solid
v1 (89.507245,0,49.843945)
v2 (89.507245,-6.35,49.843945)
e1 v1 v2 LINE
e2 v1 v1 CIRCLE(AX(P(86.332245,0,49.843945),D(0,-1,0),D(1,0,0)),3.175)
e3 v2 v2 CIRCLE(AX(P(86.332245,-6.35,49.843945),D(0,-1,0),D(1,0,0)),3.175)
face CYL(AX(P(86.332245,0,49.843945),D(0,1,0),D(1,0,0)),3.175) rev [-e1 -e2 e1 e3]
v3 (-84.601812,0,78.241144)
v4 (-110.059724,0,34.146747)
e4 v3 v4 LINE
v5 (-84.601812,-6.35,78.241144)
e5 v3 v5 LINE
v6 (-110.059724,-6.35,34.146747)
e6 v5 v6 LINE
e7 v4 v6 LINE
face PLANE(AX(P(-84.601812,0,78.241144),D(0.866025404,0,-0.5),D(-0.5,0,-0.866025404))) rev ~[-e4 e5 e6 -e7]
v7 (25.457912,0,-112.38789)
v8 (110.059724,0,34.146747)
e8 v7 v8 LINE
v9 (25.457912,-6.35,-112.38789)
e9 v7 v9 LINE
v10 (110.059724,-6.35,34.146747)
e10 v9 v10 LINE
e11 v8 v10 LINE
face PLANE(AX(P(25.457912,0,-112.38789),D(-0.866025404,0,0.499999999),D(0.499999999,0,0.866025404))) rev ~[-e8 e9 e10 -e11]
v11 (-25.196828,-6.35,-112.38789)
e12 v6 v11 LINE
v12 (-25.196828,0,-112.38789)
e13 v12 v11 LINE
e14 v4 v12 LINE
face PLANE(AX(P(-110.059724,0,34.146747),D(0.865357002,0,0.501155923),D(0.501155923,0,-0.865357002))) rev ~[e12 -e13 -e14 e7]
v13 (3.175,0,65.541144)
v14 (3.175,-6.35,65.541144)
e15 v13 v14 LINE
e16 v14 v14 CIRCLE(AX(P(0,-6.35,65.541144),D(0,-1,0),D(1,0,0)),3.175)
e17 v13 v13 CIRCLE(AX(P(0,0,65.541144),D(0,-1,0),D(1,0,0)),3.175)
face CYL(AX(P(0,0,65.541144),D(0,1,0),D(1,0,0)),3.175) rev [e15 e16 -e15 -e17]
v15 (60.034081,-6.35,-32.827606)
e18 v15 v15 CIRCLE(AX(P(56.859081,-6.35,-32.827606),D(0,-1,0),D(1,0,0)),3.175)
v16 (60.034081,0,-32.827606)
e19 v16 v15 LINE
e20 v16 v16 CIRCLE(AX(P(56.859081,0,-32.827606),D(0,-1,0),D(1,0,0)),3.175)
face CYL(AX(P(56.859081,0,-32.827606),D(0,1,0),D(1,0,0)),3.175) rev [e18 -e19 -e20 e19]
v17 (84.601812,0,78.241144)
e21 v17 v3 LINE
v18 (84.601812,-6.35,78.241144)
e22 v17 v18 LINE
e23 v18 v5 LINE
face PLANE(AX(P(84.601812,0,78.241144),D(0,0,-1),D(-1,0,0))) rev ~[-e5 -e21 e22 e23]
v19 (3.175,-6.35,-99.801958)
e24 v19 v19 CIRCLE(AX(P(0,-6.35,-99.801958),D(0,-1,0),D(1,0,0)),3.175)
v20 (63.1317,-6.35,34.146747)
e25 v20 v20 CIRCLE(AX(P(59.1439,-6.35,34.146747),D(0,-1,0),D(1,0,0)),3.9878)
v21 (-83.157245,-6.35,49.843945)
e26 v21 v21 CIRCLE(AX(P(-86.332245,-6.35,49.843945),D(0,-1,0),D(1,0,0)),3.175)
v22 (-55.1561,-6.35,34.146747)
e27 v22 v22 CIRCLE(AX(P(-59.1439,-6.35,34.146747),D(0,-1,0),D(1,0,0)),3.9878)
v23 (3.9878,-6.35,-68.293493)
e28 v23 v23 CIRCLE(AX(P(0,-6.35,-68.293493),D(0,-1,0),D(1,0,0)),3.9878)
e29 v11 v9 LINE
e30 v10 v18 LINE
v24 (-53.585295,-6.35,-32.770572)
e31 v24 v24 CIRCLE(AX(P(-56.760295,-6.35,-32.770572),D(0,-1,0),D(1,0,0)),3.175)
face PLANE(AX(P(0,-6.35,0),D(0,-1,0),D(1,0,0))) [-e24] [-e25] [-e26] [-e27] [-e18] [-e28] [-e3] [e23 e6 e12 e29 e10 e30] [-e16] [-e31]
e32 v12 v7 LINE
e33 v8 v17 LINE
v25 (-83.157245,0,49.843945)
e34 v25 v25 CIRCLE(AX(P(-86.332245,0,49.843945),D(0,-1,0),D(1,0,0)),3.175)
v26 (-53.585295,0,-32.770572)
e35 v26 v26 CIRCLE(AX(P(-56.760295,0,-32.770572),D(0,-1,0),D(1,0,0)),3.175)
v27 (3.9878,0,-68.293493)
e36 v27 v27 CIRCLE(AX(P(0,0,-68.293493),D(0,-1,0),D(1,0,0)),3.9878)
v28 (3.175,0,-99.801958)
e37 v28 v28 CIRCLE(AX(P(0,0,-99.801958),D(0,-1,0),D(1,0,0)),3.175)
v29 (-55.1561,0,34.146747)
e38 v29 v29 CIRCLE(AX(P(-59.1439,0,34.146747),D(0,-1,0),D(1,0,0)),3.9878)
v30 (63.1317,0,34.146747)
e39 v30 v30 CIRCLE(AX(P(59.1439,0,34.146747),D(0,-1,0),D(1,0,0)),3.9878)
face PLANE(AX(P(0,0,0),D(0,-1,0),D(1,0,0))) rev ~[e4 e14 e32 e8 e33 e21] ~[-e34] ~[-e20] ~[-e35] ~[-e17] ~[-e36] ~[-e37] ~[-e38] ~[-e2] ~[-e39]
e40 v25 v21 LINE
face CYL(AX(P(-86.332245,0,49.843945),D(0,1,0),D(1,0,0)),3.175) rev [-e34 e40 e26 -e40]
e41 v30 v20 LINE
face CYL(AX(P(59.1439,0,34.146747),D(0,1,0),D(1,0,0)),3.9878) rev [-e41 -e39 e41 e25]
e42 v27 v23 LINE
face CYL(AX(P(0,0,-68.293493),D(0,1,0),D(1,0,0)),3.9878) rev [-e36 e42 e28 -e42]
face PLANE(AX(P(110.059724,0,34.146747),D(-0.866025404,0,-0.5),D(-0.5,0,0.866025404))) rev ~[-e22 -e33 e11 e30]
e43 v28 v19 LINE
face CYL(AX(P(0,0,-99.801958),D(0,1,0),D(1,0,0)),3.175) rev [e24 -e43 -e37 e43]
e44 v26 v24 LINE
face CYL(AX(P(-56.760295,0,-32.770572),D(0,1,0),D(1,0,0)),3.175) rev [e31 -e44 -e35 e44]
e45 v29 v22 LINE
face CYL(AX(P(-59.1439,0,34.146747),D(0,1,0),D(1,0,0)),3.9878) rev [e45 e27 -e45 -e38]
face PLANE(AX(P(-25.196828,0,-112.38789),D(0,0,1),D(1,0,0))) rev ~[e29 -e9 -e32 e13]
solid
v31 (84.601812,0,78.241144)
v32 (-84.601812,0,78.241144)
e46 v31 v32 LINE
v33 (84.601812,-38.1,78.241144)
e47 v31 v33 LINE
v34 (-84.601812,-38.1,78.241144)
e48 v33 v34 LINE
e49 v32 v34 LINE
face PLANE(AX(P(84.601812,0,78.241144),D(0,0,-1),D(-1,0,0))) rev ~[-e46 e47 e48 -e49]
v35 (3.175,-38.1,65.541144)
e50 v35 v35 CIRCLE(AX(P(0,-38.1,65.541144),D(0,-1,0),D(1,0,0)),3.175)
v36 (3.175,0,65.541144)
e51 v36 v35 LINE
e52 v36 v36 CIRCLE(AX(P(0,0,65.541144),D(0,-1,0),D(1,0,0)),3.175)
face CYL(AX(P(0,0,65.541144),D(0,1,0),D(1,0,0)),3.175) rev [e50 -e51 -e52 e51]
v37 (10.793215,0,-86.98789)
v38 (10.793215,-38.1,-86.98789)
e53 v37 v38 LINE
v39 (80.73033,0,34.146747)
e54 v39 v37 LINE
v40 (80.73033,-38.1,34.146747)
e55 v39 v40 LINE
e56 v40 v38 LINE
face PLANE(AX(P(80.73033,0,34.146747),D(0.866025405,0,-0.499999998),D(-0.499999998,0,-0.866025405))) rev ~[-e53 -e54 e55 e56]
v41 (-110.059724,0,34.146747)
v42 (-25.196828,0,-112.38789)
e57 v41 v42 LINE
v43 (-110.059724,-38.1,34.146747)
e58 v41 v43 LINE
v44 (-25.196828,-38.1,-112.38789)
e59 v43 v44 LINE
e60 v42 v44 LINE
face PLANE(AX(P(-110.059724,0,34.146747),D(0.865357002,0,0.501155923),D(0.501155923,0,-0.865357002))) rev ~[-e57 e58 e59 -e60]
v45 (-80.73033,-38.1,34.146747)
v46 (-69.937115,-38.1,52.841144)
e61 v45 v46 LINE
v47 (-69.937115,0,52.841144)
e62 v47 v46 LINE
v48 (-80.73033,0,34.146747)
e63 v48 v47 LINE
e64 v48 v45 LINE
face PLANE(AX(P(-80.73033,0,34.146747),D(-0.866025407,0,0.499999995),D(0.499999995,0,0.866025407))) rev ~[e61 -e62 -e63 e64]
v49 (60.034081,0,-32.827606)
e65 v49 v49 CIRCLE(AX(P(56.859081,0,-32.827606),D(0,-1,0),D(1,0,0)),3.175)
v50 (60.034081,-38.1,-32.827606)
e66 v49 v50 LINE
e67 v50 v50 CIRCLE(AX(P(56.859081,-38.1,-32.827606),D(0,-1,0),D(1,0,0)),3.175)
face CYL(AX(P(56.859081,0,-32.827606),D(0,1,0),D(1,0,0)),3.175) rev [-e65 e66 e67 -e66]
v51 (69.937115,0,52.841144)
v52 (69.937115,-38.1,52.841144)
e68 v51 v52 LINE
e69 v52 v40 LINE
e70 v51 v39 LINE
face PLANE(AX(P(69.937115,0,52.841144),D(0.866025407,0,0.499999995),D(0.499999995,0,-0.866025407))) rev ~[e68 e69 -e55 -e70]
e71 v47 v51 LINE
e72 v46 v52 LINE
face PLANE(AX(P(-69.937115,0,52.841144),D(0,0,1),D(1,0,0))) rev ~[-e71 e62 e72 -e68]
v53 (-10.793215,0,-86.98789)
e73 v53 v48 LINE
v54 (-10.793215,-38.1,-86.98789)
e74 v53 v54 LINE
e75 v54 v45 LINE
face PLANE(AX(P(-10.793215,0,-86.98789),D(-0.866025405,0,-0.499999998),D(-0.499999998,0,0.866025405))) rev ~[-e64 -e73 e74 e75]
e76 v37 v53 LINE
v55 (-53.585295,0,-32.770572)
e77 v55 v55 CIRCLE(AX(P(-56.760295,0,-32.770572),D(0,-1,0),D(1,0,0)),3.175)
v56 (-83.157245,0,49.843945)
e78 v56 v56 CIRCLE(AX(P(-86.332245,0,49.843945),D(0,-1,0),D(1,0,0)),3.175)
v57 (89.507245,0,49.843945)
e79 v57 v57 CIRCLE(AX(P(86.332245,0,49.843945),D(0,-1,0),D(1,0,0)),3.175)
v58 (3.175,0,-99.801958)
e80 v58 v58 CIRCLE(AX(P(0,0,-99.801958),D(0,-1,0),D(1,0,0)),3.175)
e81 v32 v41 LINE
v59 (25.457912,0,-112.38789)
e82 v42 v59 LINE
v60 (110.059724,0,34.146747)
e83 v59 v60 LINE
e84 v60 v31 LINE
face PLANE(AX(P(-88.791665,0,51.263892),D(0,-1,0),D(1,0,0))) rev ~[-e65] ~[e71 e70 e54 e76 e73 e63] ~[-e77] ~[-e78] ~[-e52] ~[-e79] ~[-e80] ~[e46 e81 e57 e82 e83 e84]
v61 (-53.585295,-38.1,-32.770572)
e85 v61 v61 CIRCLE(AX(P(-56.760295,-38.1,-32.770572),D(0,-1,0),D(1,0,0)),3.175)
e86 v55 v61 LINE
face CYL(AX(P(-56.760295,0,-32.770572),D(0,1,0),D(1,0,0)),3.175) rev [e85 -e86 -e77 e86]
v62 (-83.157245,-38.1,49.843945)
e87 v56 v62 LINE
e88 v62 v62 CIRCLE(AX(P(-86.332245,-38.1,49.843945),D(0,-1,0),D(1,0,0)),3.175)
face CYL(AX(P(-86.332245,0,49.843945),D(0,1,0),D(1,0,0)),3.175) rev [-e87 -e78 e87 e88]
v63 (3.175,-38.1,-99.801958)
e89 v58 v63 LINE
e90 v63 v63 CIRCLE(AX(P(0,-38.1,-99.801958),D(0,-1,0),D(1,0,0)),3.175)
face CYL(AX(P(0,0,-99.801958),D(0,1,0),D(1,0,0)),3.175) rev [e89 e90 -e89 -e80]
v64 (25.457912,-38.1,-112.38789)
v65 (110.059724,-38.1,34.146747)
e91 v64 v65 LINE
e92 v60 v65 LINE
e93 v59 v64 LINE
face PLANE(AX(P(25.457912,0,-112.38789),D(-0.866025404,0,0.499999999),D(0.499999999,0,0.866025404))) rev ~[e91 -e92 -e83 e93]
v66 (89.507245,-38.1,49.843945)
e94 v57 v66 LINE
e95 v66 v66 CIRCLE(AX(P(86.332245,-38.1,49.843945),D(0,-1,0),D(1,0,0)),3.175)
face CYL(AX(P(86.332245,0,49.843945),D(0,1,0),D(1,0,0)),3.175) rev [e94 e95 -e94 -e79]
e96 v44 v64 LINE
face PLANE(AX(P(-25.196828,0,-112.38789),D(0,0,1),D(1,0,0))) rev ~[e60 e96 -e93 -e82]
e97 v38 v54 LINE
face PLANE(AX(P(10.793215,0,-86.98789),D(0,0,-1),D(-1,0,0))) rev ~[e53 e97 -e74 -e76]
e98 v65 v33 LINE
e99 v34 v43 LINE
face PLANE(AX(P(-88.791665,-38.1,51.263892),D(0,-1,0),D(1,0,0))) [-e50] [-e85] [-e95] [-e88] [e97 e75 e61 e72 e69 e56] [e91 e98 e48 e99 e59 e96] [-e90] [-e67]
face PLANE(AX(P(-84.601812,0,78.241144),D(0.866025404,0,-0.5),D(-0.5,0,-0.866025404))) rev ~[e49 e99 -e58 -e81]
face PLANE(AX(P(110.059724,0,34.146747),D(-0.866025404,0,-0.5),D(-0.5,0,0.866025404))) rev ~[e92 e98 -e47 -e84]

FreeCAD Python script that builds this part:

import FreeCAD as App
import Part
import Sketcher

V = App.Vector
Q = App.Units.Quantity

doc = App.newDocument("Part")
body = doc.addObject("PartDesign::Body", "Body")

sketch1 = body.newObject("Sketcher::SketchObject", "Sketch")
sketch1.AttachmentSupport = (doc.getObject("XZ_Plane"), [""])
sketch1.MapMode = "FlatFace"
sketch1.addGeometry([
    Part.LineSegment(V(110.059724, 34.146747, 0), V(84.601812, 78.241144, 0)),
    Part.LineSegment(V(84.601812, 78.241144, 0), V(-84.601812, 78.241144, 0)),
    Part.LineSegment(V(-84.601812, 78.241144, 0), V(-110.059724, 34.146747, 0)),
    Part.LineSegment(V(-110.059724, 34.146747, 0), V(-25.196828, -112.38789, 0)),
    Part.LineSegment(V(-25.196828, -112.38789, 0), V(25.457912, -112.38789, 0)),
    Part.LineSegment(V(25.457912, -112.38789, 0), V(110.059724, 34.146747, 0)),
    Part.Circle(V(0, -99.801958, 0), V(0, 0, 1), 3.175),
    Part.Circle(V(0, -68.293493, 0), V(0, 0, 1), 3.9878),
    Part.Circle(V(-56.760295, -32.770572, 0), V(0, 0, 1), 3.175),
    Part.Circle(V(56.859081, -32.827606, 0), V(0, 0, 1), 3.175),
    Part.Circle(V(-59.1439, 34.146747, 0), V(0, 0, 1), 3.9878),
    Part.Circle(V(-86.332245, 49.843945, 0), V(0, 0, 1), 3.175),
    Part.Circle(V(0, 65.541144, 0), V(0, 0, 1), 3.175),
    Part.Circle(V(59.1439, 34.146747, 0), V(0, 0, 1), 3.9878),
    Part.Circle(V(86.332245, 49.843945, 0), V(0, 0, 1), 3.175),
], False)
sketch1.addConstraint([
    Sketcher.Constraint("Coincident", 0, 2, 1, 1),
    Sketcher.Constraint("Coincident", 1, 2, 2, 1),
    Sketcher.Constraint("Coincident", 2, 2, 3, 1),
    Sketcher.Constraint("Coincident", 3, 2, 4, 1),
    Sketcher.Constraint("Coincident", 4, 2, 5, 1),
    Sketcher.Constraint("Coincident", 5, 2, 0, 1),
    Sketcher.Constraint("Horizontal", 1),
    Sketcher.Constraint("Horizontal", 4),
    Sketcher.Constraint("Equal", 6, 8),
    Sketcher.Constraint("Equal", 8, 9),
    Sketcher.Constraint("Equal", 7, 10),
    Sketcher.Constraint("Equal", 9, 11),
    Sketcher.Constraint("Equal", 11, 12),
    Sketcher.Constraint("Equal", 10, 13),
    Sketcher.Constraint("Equal", 12, 14),
    Sketcher.Constraint("Symmetric", 10, 3, 13, 3, -2),
    Sketcher.Constraint("Symmetric", 11, 3, 14, 3, -2),
    Sketcher.Constraint("Symmetric", 2, 2, 5, 2, -2),
    Sketcher.Constraint("PointOnObject", 6, 3, -2),
    Sketcher.Constraint("PointOnObject", 7, 3, -2),
    Sketcher.Constraint("PointOnObject", 12, 3, -2),
    Sketcher.Constraint("Parallel", 2, 5),
    Sketcher.Constraint("Horizontal", 13, 3, 2, 2),
    Sketcher.Constraint("Equal", 0, 2),
    Sketcher.Constraint("Diameter", 6, Q("0.25 in")),
    Sketcher.Constraint("Diameter", 7, Q("0.314 in")),
    Sketcher.Constraint("Angle", 0, Q("120 deg")),
    Sketcher.Constraint("DistanceY", 12, 3, 0, 2, Q("0.5 in")),
    Sketcher.Constraint("DistanceY", 10, 3, 11, 3, Q("0.6179999 in")),
    Sketcher.Constraint("DistanceY", 10, 3, 12, 3, Q("1.2359999 in")),
    Sketcher.Constraint("DistanceX", 10, 3, 13, 3, Q("4.657 in")),
    Sketcher.Constraint("DistanceY", 3, 2, 7, 3, Q("1.7359999 in")),
    Sketcher.Constraint("DistanceX", 4, 1, 4, 2, 50.65474),
    Sketcher.Constraint("DistanceX", 1, 2, 1, 1, 169.203624),
    Sketcher.Constraint("DistanceY", 6, 3, -1, 1, 99.801958),
    Sketcher.Constraint("DistanceX", -1, 1, 9, 3, 56.859081),
    Sketcher.Constraint("DistanceX", 3, 2, -1, 1, 25.196828),
    Sketcher.Constraint("DistanceY", 3, 2, -1, 1, 112.38789),
    Sketcher.Constraint("DistanceY", 7, 3, 8, 3, 35.522921),
    Sketcher.Constraint("DistanceY", 6, 3, 9, 3, 66.974352),
    Sketcher.Constraint("DistanceX", 11, 3, 8, 3, 29.57195),
    Sketcher.Constraint("DistanceX", 2, 2, 11, 3, 23.727479),
])
pad1 = body.newObject("PartDesign::Pad", "Pad")
pad1.Profile = sketch1
pad1.Length = Q("0.25 in")
body2 = doc.addObject("PartDesign::Body", "Body001")

sketch2 = body2.newObject("Sketcher::SketchObject", "Sketch001")
sketch2.AttachmentSupport = (doc.getObject("XZ_Plane001"), [""])
sketch2.MapMode = "FlatFace"
sketch2.addGeometry([
    Part.LineSegment(V(-84.601812, 78.241144, 0), V(-110.059724, 34.146747, 0)),
    Part.LineSegment(V(-110.059724, 34.146747, 0), V(-25.196828, -112.38789, 0)),
    Part.LineSegment(V(-25.196828, -112.38789, 0), V(25.457912, -112.38789, 0)),
    Part.LineSegment(V(25.457912, -112.38789, 0), V(110.059724, 34.146747, 0)),
    Part.LineSegment(V(110.059724, 34.146747, 0), V(84.601812, 78.241144, 0)),
    Part.LineSegment(V(84.601812, 78.241144, 0), V(-84.601812, 78.241144, 0)),
    Part.Circle(V(0, -99.801958, 0), V(0, 0, 1), 3.175),
    Part.Circle(V(-56.760295, -32.770572, 0), V(0, 0, 1), 3.175),
    Part.Circle(V(56.859081, -32.827606, 0), V(0, 0, 1), 3.175),
    Part.LineSegment(V(-80.73033, 34.146747, 0), V(-69.937115, 52.841144, 0)),
    Part.LineSegment(V(-69.937115, 52.841144, 0), V(69.937115, 52.841144, 0)),
    Part.LineSegment(V(69.937115, 52.841144, 0), V(80.73033, 34.146747, 0)),
    Part.LineSegment(V(80.73033, 34.146747, 0), V(10.793215, -86.98789, 0)),
    Part.LineSegment(V(10.793215, -86.98789, 0), V(-10.793215, -86.98789, 0)),
    Part.LineSegment(V(-10.793215, -86.98789, 0), V(-80.73033, 34.146747, 0)),
    Part.Circle(V(-86.332245, 49.843945, 0), V(0, 0, 1), 3.175),
    Part.Circle(V(0, 65.541144, 0), V(0, 0, 1), 3.175),
    Part.Circle(V(86.332245, 49.843945, 0), V(0, 0, 1), 3.175),
], False)
sketch2.addConstraint([
    Sketcher.Constraint("Coincident", 0, 2, 1, 1),
    Sketcher.Constraint("Coincident", 1, 2, 2, 1),
    Sketcher.Constraint("Coincident", 2, 2, 3, 1),
    Sketcher.Constraint("Coincident", 3, 2, 4, 1),
    Sketcher.Constraint("Coincident", 4, 2, 5, 1),
    Sketcher.Constraint("Coincident", 5, 2, 0, 1),
    Sketcher.Constraint("Coincident", 9, 2, 10, 1),
    Sketcher.Constraint("Coincident", 10, 2, 11, 1),
    Sketcher.Constraint("Coincident", 11, 2, 12, 1),
    Sketcher.Constraint("Coincident", 12, 2, 13, 1),
    Sketcher.Constraint("Coincident", 13, 2, 14, 1),
    Sketcher.Constraint("Coincident", 14, 2, 9, 1),
    Sketcher.Constraint("Horizontal", 2),
    Sketcher.Constraint("Horizontal", 5),
    Sketcher.Constraint("Horizontal", 10),
    Sketcher.Constraint("Horizontal", 13),
    Sketcher.Constraint("Equal", 6, 7),
    Sketcher.Constraint("Equal", 7, 8),
    Sketcher.Constraint("Equal", 8, 15),
    Sketcher.Constraint("Equal", 15, 16),
    Sketcher.Constraint("Equal", 16, 17),
    Sketcher.Constraint("Symmetric", 15, 3, 17, 3, -2),
    Sketcher.Constraint("Symmetric", 0, 2, 3, 2, -2),
    Sketcher.Constraint("Symmetric", 11, 2, 14, 2, -2),
    Sketcher.Constraint("PointOnObject", 6, 3, -2),
    Sketcher.Constraint("PointOnObject", 16, 3, -2),
    Sketcher.Constraint("Parallel", 0, 3),
    Sketcher.Constraint("Parallel", 3, 9),
    Sketcher.Constraint("Parallel", 4, 11),
    Sketcher.Constraint("Parallel", 9, 12),
    Sketcher.Constraint("Parallel", 11, 14),
    Sketcher.Constraint("Horizontal", 3, 2, 11, 2),
    Sketcher.Constraint("Equal", 0, 4),
    Sketcher.Constraint("Diameter", 6, Q("0.25 in")),
    Sketcher.Constraint("Angle", 0, Q("-120 deg")),
    Sketcher.Constraint("DistanceY", 9, 2, 5, 2, Q("1 in")),
    Sketcher.Constraint("DistanceY", 2, 2, 12, 2, Q("1 in")),
    Sketcher.Constraint("DistanceY", 16, 3, 4, 2, Q("0.5 in")),
    Sketcher.Constraint("DistanceY", 15, 3, 16, 3, Q("0.618 in")),
    Sketcher.Constraint("DistanceY", 0, 2, 15, 3, Q("0.6179999 in")),
    Sketcher.Constraint("DistanceX", 2, 1, 2, 2, 50.65474),
    Sketcher.Constraint("DistanceX", 10, 1, 10, 2, 139.87423),
    Sketcher.Constraint("DistanceX", 13, 2, 13, 1, 21.58643),
    Sketcher.Constraint("DistanceY", 6, 3, 16, 3, 165.343102),
    Sketcher.Constraint("DistanceX", 5, 2, 5, 1, 169.203624),
    Sketcher.Constraint("DistanceY", 6, 3, -1, 1, 99.801958),
    Sketcher.Constraint("DistanceX", -1, 1, 8, 3, 56.859081),
    Sketcher.Constraint("DistanceY", 6, 3, 8, 3, 66.974352),
    Sketcher.Constraint("DistanceX", 15, 3, 7, 3, 29.57195),
    Sketcher.Constraint("DistanceX", 7, 3, 17, 3, 143.09254),
    Sketcher.Constraint("DistanceY", 7, 3, 0, 2, 66.917319),
])
pad2 = body2.newObject("PartDesign::Pad", "Pad001")
pad2.Profile = sketch2
pad2.Length = Q("1.5 in")

doc.recompute()
